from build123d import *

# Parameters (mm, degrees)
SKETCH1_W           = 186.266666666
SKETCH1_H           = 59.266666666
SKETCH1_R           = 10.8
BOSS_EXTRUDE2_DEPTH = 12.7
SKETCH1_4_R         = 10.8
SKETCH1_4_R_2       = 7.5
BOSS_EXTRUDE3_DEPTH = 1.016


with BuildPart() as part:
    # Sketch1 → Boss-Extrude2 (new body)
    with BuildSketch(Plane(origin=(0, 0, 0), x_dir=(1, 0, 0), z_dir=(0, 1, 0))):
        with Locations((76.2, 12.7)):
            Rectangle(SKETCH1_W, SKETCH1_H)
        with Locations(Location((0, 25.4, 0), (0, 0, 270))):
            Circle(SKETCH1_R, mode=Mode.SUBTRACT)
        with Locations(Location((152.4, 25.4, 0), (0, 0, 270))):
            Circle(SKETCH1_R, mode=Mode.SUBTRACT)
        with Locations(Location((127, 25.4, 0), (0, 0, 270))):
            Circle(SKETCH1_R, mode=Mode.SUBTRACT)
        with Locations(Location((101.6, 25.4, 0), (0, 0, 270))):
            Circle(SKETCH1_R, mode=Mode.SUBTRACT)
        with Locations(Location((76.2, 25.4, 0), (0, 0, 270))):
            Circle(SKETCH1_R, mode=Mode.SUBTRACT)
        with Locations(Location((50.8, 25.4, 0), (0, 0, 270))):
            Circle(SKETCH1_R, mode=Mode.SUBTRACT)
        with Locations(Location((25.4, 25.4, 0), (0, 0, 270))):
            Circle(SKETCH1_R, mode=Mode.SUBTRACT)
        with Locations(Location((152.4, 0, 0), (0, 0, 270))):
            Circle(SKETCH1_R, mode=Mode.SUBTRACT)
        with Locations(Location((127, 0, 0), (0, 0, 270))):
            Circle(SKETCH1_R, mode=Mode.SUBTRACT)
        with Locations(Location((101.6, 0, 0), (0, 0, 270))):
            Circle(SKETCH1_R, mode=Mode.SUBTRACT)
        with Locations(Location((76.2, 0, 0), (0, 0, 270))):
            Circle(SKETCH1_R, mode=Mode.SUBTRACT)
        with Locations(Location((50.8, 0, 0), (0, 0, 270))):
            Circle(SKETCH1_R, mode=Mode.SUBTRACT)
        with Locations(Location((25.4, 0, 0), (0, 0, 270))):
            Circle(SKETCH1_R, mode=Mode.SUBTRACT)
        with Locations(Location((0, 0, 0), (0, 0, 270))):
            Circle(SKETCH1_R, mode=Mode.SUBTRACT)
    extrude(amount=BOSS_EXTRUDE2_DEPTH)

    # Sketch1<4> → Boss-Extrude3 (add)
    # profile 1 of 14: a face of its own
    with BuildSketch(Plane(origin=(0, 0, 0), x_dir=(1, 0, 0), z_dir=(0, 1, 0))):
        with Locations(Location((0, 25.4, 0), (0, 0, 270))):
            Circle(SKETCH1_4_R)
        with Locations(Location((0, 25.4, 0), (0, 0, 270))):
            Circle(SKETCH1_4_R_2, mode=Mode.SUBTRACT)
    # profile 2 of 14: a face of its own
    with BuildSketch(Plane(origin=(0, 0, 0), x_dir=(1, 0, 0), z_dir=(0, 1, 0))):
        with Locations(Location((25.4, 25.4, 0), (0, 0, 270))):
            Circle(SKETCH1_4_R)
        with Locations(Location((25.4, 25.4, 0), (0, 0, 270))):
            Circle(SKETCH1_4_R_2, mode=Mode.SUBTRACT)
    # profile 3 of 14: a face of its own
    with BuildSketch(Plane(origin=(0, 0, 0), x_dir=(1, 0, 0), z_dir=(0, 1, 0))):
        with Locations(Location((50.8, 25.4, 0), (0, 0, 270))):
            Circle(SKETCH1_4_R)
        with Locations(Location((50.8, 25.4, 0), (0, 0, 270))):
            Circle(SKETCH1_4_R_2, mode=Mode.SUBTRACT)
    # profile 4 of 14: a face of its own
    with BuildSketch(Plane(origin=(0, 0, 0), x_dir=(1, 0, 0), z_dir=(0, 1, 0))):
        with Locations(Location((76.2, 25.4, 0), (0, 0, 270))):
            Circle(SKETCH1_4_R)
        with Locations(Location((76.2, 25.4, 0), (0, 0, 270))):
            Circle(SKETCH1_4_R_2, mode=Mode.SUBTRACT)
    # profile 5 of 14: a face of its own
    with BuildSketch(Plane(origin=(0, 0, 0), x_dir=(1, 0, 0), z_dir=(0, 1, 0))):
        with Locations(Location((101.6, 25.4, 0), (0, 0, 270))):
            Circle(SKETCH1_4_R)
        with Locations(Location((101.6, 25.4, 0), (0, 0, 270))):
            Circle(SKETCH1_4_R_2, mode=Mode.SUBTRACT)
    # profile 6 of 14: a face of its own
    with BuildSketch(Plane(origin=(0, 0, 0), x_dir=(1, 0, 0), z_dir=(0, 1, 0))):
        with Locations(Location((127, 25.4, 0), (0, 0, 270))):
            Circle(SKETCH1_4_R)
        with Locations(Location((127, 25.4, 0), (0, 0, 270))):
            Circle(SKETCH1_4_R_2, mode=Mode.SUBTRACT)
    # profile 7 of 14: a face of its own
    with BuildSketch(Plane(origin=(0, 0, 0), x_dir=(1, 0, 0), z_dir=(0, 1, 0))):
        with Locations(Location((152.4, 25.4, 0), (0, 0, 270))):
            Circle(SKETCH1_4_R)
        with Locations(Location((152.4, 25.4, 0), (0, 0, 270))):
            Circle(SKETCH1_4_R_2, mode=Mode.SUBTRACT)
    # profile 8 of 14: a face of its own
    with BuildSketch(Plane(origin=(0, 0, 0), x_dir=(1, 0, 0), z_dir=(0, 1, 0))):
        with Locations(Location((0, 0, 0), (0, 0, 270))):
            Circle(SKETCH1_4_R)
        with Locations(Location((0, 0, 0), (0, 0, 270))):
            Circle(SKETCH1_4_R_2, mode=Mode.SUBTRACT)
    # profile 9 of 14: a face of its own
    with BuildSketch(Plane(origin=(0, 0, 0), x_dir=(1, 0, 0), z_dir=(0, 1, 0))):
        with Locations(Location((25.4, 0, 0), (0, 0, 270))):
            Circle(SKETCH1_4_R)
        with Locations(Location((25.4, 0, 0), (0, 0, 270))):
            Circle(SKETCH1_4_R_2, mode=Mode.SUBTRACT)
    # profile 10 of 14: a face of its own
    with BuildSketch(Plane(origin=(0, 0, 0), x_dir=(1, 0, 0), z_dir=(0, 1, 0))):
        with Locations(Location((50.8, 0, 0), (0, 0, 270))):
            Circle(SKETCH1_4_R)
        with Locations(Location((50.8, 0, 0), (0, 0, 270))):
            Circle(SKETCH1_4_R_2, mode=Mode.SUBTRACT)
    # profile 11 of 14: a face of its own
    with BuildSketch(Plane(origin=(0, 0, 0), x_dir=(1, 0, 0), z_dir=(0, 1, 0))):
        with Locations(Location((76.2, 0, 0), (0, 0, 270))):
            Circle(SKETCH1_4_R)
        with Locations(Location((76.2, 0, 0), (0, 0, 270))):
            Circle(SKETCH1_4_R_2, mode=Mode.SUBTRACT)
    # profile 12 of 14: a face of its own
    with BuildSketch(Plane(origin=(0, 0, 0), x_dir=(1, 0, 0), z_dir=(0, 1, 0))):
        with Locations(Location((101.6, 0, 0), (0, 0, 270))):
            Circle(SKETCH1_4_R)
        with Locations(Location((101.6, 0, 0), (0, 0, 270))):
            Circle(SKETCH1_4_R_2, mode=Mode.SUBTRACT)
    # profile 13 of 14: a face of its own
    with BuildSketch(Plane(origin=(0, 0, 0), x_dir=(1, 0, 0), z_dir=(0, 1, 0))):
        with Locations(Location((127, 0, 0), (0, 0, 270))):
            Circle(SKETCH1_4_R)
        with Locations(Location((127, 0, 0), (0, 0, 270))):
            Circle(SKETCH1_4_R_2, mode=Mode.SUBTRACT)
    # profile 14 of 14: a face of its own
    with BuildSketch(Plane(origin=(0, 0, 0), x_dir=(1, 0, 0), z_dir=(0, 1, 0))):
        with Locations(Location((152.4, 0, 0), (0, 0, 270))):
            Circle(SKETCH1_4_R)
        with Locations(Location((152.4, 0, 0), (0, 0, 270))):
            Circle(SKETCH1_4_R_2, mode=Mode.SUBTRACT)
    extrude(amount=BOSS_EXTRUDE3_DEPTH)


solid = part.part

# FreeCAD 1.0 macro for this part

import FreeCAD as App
import Part
import Sketcher
from FreeCAD import Vector
Q = App.Units.Quantity


def add_polygon(sketch, points):
    """Adds a closed chain of lines whose ends are joined by coincident constraints."""
    first, n = sketch.GeometryCount, len(points)
    for a, b in zip(points, points[1:] + points[:1]):
        sketch.addGeometry(Part.LineSegment(App.Vector(*a, 0), App.Vector(*b, 0)), False)
    for i in range(n):
        sketch.addConstraint(Sketcher.Constraint("Coincident", first + i, 2, first + (i + 1) % n, 1))

doc = App.newDocument("Part")
params = doc.addObject("Spreadsheet::Sheet", "Params")
for row, (alias, value) in enumerate([
    ("sketch1_diameter", "21.6 mm"),
    ("pad1_length", "12.7 mm"),
    ("sketch2_diameter", "15 mm"),
    ("sketch2_diameter2", "21.6 mm"),
    ("pad2_length", "1.016 mm"),
], start=1):
    params.set(f"A{row}", alias)
    params.set(f"B{row}", "=" + value)
    params.setAlias(f"B{row}", alias)

body = doc.addObject("PartDesign::Body", "Body")

# Sketch on XZ plane
sketch1 = body.newObject("Sketcher::SketchObject", "Sketch")
sketch1.AttachmentSupport = (doc.getObject("XZ_Plane"), [""])
sketch1.MapMode = "FlatFace"
add_polygon(sketch1, [(-17, -42), (-17, 17), (169, 17), (169, -42)])  # lines 0-3
sketch1.addGeometry(Part.Circle(Vector(0, 0, 0), Vector(0, 0, 1), 11), False)  # 4
sketch1.addGeometry(Part.Circle(Vector(25, 0, 0), Vector(0, 0, 1), 11), False)  # 5
sketch1.addGeometry(Part.Circle(Vector(51, 0, 0), Vector(0, 0, 1), 11), False)  # 6
sketch1.addGeometry(Part.Circle(Vector(76, 0, 0), Vector(0, 0, 1), 11), False)  # 7
sketch1.addGeometry(Part.Circle(Vector(102, 0, 0), Vector(0, 0, 1), 11), False)  # 8
sketch1.addGeometry(Part.Circle(Vector(127, 0, 0), Vector(0, 0, 1), 11), False)  # 9
sketch1.addGeometry(Part.Circle(Vector(152, 0, 0), Vector(0, 0, 1), 11), False)  # 10
sketch1.addGeometry(Part.Circle(Vector(0, -25, 0), Vector(0, 0, 1), 11), False)  # 11
sketch1.addGeometry(Part.Circle(Vector(25, -25, 0), Vector(0, 0, 1), 11), False)  # 12
sketch1.addGeometry(Part.Circle(Vector(51, -25, 0), Vector(0, 0, 1), 11), False)  # 13
sketch1.addGeometry(Part.Circle(Vector(76, -25, 0), Vector(0, 0, 1), 11), False)  # 14
sketch1.addGeometry(Part.Circle(Vector(102, -25, 0), Vector(0, 0, 1), 11), False)  # 15
sketch1.addGeometry(Part.Circle(Vector(127, -25, 0), Vector(0, 0, 1), 11), False)  # 16
sketch1.addGeometry(Part.Circle(Vector(152, -25, 0), Vector(0, 0, 1), 11), False)  # 17
sketch1.addConstraint([
    Sketcher.Constraint("Vertical", 0),
    Sketcher.Constraint("Horizontal", 1),
    Sketcher.Constraint("Vertical", 2),
    Sketcher.Constraint("Horizontal", 3),
    Sketcher.Constraint("Coincident", 4, 3, -1, 1),
    Sketcher.Constraint("Equal", 4, 5),
    Sketcher.Constraint("Equal", 5, 6),
    Sketcher.Constraint("Equal", 6, 7),
    Sketcher.Constraint("Equal", 7, 8),
    Sketcher.Constraint("Equal", 8, 9),
    Sketcher.Constraint("Equal", 9, 10),
    Sketcher.Constraint("Equal", 10, 11),
    Sketcher.Constraint("Equal", 11, 12),
    Sketcher.Constraint("Equal", 12, 13),
    Sketcher.Constraint("Equal", 13, 14),
    Sketcher.Constraint("Equal", 14, 15),
    Sketcher.Constraint("Equal", 15, 16),
    Sketcher.Constraint("Equal", 16, 17),
    Sketcher.Constraint("PointOnObject", 5, 3, -1),
    Sketcher.Constraint("PointOnObject", 6, 3, -1),
    Sketcher.Constraint("PointOnObject", 7, 3, -1),
    Sketcher.Constraint("PointOnObject", 8, 3, -1),
    Sketcher.Constraint("PointOnObject", 9, 3, -1),
    Sketcher.Constraint("PointOnObject", 10, 3, -1),
    Sketcher.Constraint("PointOnObject", 11, 3, -2),
    Sketcher.Constraint("Horizontal", 11, 3, 12, 3),
    Sketcher.Constraint("Horizontal", 12, 3, 13, 3),
    Sketcher.Constraint("Horizontal", 13, 3, 14, 3),
    Sketcher.Constraint("Horizontal", 14, 3, 15, 3),
    Sketcher.Constraint("Horizontal", 15, 3, 16, 3),
    Sketcher.Constraint("Horizontal", 16, 3, 17, 3),
    Sketcher.Constraint("Vertical", 5, 3, 12, 3),
    Sketcher.Constraint("Vertical", 6, 3, 13, 3),
    Sketcher.Constraint("Vertical", 7, 3, 14, 3),
    Sketcher.Constraint("Vertical", 8, 3, 15, 3),
    Sketcher.Constraint("Vertical", 9, 3, 16, 3),
    Sketcher.Constraint("Vertical", 10, 3, 17, 3),
    Sketcher.Constraint("Diameter", 4, Q("21.6 mm")),
    Sketcher.Constraint("DistanceX", -1, 1, 9, 3, Q("127 mm")),
    Sketcher.Constraint("DistanceX", 5, 3, 10, 3, Q("127 mm")),
    Sketcher.Constraint("DistanceX", -1, 1, 5, 3, Q("25.4 mm")),
    Sketcher.Constraint("DistanceX", -1, 1, 6, 3, Q("50.8 mm")),
    Sketcher.Constraint("DistanceX", -1, 1, 7, 3, Q("76.2 mm")),
    Sketcher.Constraint("DistanceX", -1, 1, 8, 3, Q("101.6 mm")),
    Sketcher.Constraint("DistanceY", 11, 3, -1, 1, Q("25.4 mm")),
    Sketcher.Constraint("DistanceX", 1, 1, 1, 2, Q("186.266667 mm")),
    Sketcher.Constraint("DistanceY", 0, 1, 0, 2, Q("59.266667 mm")),
    Sketcher.Constraint("DistanceX", 0, 2, -1, 1, Q("16.933333 mm")),
    Sketcher.Constraint("DistanceY", -1, 1, 0, 2, Q("16.933333 mm")),
])
sketch1.setExpression("Constraints[41]", "Params.sketch1_diameter")
pad1 = body.newObject("PartDesign::Pad", "Pad")
pad1.Profile = sketch1
pad1.setExpression("Length", "Params.pad1_length")
pad1.Reversed = True

# Sketch on XZ plane
sketch2 = body.newObject("Sketcher::SketchObject", "Sketch001")
sketch2.AttachmentSupport = (doc.getObject("XZ_Plane"), [""])
sketch2.MapMode = "FlatFace"
sketch2.addGeometry([
    Part.Circle(Vector(0, -25, 0), Vector(0, 0, 1), 11),  # 0
    Part.Circle(Vector(0, -25, 0), Vector(0, 0, 1), 8),  # 1
    Part.Circle(Vector(25, -25, 0), Vector(0, 0, 1), 11),  # 2
    Part.Circle(Vector(25, -25, 0), Vector(0, 0, 1), 8),  # 3
    Part.Circle(Vector(51, -25, 0), Vector(0, 0, 1), 11),  # 4
    Part.Circle(Vector(51, -25, 0), Vector(0, 0, 1), 8),  # 5
    Part.Circle(Vector(76, -25, 0), Vector(0, 0, 1), 11),  # 6
    Part.Circle(Vector(76, -25, 0), Vector(0, 0, 1), 8),  # 7
    Part.Circle(Vector(102, -25, 0), Vector(0, 0, 1), 11),  # 8
    Part.Circle(Vector(102, -25, 0), Vector(0, 0, 1), 8),  # 9
    Part.Circle(Vector(127, -25, 0), Vector(0, 0, 1), 11),  # 10
    Part.Circle(Vector(127, -25, 0), Vector(0, 0, 1), 8),  # 11
    Part.Circle(Vector(152, -25, 0), Vector(0, 0, 1), 11),  # 12
    Part.Circle(Vector(152, -25, 0), Vector(0, 0, 1), 8),  # 13
    Part.Circle(Vector(0, 0, 0), Vector(0, 0, 1), 11),  # 14
    Part.Circle(Vector(0, 0, 0), Vector(0, 0, 1), 8),  # 15
    Part.Circle(Vector(25, 0, 0), Vector(0, 0, 1), 11),  # 16
    Part.Circle(Vector(25, 0, 0), Vector(0, 0, 1), 8),  # 17
    Part.Circle(Vector(51, 0, 0), Vector(0, 0, 1), 11),  # 18
    Part.Circle(Vector(51, 0, 0), Vector(0, 0, 1), 8),  # 19
    Part.Circle(Vector(76, 0, 0), Vector(0, 0, 1), 11),  # 20
    Part.Circle(Vector(76, 0, 0), Vector(0, 0, 1), 8),  # 21
    Part.Circle(Vector(102, 0, 0), Vector(0, 0, 1), 11),  # 22
    Part.Circle(Vector(102, 0, 0), Vector(0, 0, 1), 8),  # 23
    Part.Circle(Vector(127, 0, 0), Vector(0, 0, 1), 11),  # 24
    Part.Circle(Vector(127, 0, 0), Vector(0, 0, 1), 8),  # 25
    Part.Circle(Vector(152, 0, 0), Vector(0, 0, 1), 11),  # 26
    Part.Circle(Vector(152, 0, 0), Vector(0, 0, 1), 8),  # 27
], False)
sketch2.addConstraint([
    Sketcher.Constraint("Coincident", 14, 3, -1, 1),
    Sketcher.Constraint("Coincident", 15, 3, -1, 1),
    Sketcher.Constraint("Coincident", 1, 3, 0, 3),
    Sketcher.Constraint("Coincident", 3, 3, 2, 3),
    Sketcher.Constraint("Coincident", 5, 3, 4, 3),
    Sketcher.Constraint("Coincident", 7, 3, 6, 3),
    Sketcher.Constraint("Coincident", 9, 3, 8, 3),
    Sketcher.Constraint("Coincident", 11, 3, 10, 3),
    Sketcher.Constraint("Coincident", 13, 3, 12, 3),
    Sketcher.Constraint("Coincident", 17, 3, 16, 3),
    Sketcher.Constraint("Coincident", 19, 3, 18, 3),
    Sketcher.Constraint("Coincident", 21, 3, 20, 3),
    Sketcher.Constraint("Coincident", 23, 3, 22, 3),
    Sketcher.Constraint("Coincident", 25, 3, 24, 3),
    Sketcher.Constraint("Coincident", 27, 3, 26, 3),
    Sketcher.Constraint("Equal", 0, 2),
    Sketcher.Constraint("Equal", 1, 3),
    Sketcher.Constraint("Equal", 2, 4),
    Sketcher.Constraint("Equal", 3, 5),
    Sketcher.Constraint("Equal", 4, 6),
    Sketcher.Constraint("Equal", 5, 7),
    Sketcher.Constraint("Equal", 6, 8),
    Sketcher.Constraint("Equal", 7, 9),
    Sketcher.Constraint("Equal", 8, 10),
    Sketcher.Constraint("Equal", 9, 11),
    Sketcher.Constraint("Equal", 10, 12),
    Sketcher.Constraint("Equal", 11, 13),
    Sketcher.Constraint("Equal", 12, 14),
    Sketcher.Constraint("Equal", 13, 15),
    Sketcher.Constraint("Equal", 14, 16),
    Sketcher.Constraint("Equal", 15, 17),
    Sketcher.Constraint("Equal", 16, 18),
    Sketcher.Constraint("Equal", 17, 19),
    Sketcher.Constraint("Equal", 18, 20),
    Sketcher.Constraint("Equal", 19, 21),
    Sketcher.Constraint("Equal", 20, 22),
    Sketcher.Constraint("Equal", 21, 23),
    Sketcher.Constraint("Equal", 22, 24),
    Sketcher.Constraint("Equal", 23, 25),
    Sketcher.Constraint("Equal", 24, 26),
    Sketcher.Constraint("Equal", 25, 27),
    Sketcher.Constraint("PointOnObject", 0, 3, -2),
    Sketcher.Constraint("PointOnObject", 16, 3, -1),
    Sketcher.Constraint("PointOnObject", 18, 3, -1),
    Sketcher.Constraint("PointOnObject", 20, 3, -1),
    Sketcher.Constraint("PointOnObject", 22, 3, -1),
    Sketcher.Constraint("PointOnObject", 24, 3, -1),
    Sketcher.Constraint("PointOnObject", 26, 3, -1),
    Sketcher.Constraint("Horizontal", 1, 3, 2, 3),
    Sketcher.Constraint("Horizontal", 3, 3, 4, 3),
    Sketcher.Constraint("Horizontal", 5, 3, 6, 3),
    Sketcher.Constraint("Horizontal", 7, 3, 8, 3),
    Sketcher.Constraint("Horizontal", 9, 3, 10, 3),
    Sketcher.Constraint("Horizontal", 11, 3, 12, 3),
    Sketcher.Constraint("Vertical", 3, 3, 16, 3),
    Sketcher.Constraint("Vertical", 5, 3, 18, 3),
    Sketcher.Constraint("Vertical", 7, 3, 20, 3),
    Sketcher.Constraint("Vertical", 9, 3, 22, 3),
    Sketcher.Constraint("Vertical", 11, 3, 24, 3),
    Sketcher.Constraint("Vertical", 13, 3, 26, 3),
    Sketcher.Constraint("Diameter", 1, Q("15 mm")),
    Sketcher.Constraint("Diameter", 0, Q("21.6 mm")),
    Sketcher.Constraint("DistanceX", -1, 1, 10, 3, Q("127 mm")),
    Sketcher.Constraint("DistanceY", 0, 3, -1, 1, Q("25.4 mm")),
    Sketcher.Constraint("DistanceX", -1, 1, 2, 3, Q("25.4 mm")),
    Sketcher.Constraint("DistanceX", -1, 1, 4, 3, Q("50.8 mm")),
    Sketcher.Constraint("DistanceX", -1, 1, 6, 3, Q("76.2 mm")),
    Sketcher.Constraint("DistanceX", -1, 1, 8, 3, Q("101.6 mm")),
    Sketcher.Constraint("DistanceX", -1, 1, 12, 3, Q("152.4 mm")),
])
sketch2.setExpression("Constraints[60]", "Params.sketch2_diameter")
sketch2.setExpression("Constraints[61]", "Params.sketch2_diameter2")
pad2 = body.newObject("PartDesign::Pad", "Pad001")
pad2.Profile = sketch2
pad2.setExpression("Length", "Params.pad2_length")
pad2.Reversed = True

doc.recompute()
